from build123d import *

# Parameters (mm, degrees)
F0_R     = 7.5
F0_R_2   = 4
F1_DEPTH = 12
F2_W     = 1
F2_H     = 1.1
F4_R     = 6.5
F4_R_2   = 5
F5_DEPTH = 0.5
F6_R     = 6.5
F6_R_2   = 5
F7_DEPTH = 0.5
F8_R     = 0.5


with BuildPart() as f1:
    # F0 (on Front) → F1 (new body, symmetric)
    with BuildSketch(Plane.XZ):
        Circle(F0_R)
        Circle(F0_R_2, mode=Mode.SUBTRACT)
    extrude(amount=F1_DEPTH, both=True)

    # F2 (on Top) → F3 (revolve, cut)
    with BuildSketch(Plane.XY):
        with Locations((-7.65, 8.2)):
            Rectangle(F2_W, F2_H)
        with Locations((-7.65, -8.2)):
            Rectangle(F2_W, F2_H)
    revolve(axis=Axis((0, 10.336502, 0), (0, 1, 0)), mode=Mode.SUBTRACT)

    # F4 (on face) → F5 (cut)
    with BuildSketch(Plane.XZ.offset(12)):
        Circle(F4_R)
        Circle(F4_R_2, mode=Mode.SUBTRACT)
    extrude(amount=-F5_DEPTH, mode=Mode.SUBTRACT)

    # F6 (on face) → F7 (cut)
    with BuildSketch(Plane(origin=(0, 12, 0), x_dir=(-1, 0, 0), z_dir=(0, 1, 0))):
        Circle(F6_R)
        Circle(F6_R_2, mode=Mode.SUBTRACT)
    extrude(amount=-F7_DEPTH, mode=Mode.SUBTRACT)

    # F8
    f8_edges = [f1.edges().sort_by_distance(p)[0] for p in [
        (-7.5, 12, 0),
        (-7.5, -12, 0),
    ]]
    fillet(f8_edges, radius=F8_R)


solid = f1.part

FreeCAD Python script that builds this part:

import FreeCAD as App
import Part
import Sketcher
from FreeCAD import Vector
Q = App.Units.Quantity


def edges_at(feature, points):
    """Names of the edges that pass closest to the given points."""
    edges = feature.Shape.Edges
    near = lambda p: min(range(len(edges)), key=lambda i: edges[i].distToShape(Part.Vertex(*p))[0])
    return sorted({f"Edge{near(p) + 1}" for p in points})


def add_polygon(sketch, points):
    """Adds a closed chain of lines whose ends are joined by coincident constraints."""
    first, n = sketch.GeometryCount, len(points)
    for a, b in zip(points, points[1:] + points[:1]):
        sketch.addGeometry(Part.LineSegment(App.Vector(*a, 0), App.Vector(*b, 0)), False)
    for i in range(n):
        sketch.addConstraint(Sketcher.Constraint("Coincident", first + i, 2, first + (i + 1) % n, 1))

doc = App.newDocument("Part")
params = doc.addObject("Spreadsheet::Sheet", "Params")
for row, (alias, value) in enumerate([
    ("sketch1_diameter", "15 mm"),
    ("sketch1_diameter2", "8 mm"),
    ("pad1_length", "24 mm"),
    ("sketch2_width", "1 mm"),
    ("sketch2_height", "1.1 mm"),
    ("groove_angle", "360 deg"),
    ("sketch3_diameter", "13 mm"),
    ("sketch3_diameter2", "10 mm"),
    ("pocket1_length", "0.5 mm"),
    ("sketch4_diameter", "13 mm"),
    ("sketch4_diameter2", "10 mm"),
    ("pocket2_length", "0.5 mm"),
    ("fillet_radius", "0.5 mm"),
], start=1):
    params.set(f"A{row}", alias)
    params.set(f"B{row}", "=" + value)
    params.setAlias(f"B{row}", alias)

body = doc.addObject("PartDesign::Body", "Body")

sketch1 = body.newObject("Sketcher::SketchObject", "Sketch")
sketch1.AttachmentSupport = (doc.getObject("XZ_Plane"), [""])
sketch1.MapMode = "FlatFace"
sketch1.addGeometry([
    Part.Circle(Vector(0, 0, 0), Vector(0, 0, 1), 7.5),
    Part.Circle(Vector(0, 0, 0), Vector(0, 0, 1), 4),
], False)
sketch1.addConstraint([
    Sketcher.Constraint("Coincident", 0, 3, -1, 1),
    Sketcher.Constraint("Coincident", 1, 3, -1, 1),
    Sketcher.Constraint("Diameter", 0, Q("15 mm")),
    Sketcher.Constraint("Diameter", 1, Q("8 mm")),
])
sketch1.setExpression("Constraints[2]", "Params.sketch1_diameter")
sketch1.setExpression("Constraints[3]", "Params.sketch1_diameter2")
pad1 = body.newObject("PartDesign::Pad", "Pad")
pad1.Profile = sketch1
pad1.setExpression("Length", "Params.pad1_length")
pad1.Midplane = True

sketch2 = body.newObject("Sketcher::SketchObject", "Sketch001")
sketch2.AttachmentSupport = (doc.getObject("XY_Plane"), [""])
sketch2.MapMode = "FlatFace"
add_polygon(sketch2, [(-8.2, 8.8), (-8.2, 7.7), (-7.2, 7.7), (-7.2, 8.8)])
add_polygon(sketch2, [(-8.2, -7.7), (-8.2, -8.8), (-7.2, -8.8), (-7.2, -7.7)])
sketch2.addConstraint([
    Sketcher.Constraint("Vertical", 0),
    Sketcher.Constraint("Horizontal", 1),
    Sketcher.Constraint("Vertical", 2),
    Sketcher.Constraint("Horizontal", 3),
    Sketcher.Constraint("Vertical", 4),
    Sketcher.Constraint("Horizontal", 5),
    Sketcher.Constraint("Vertical", 6),
    Sketcher.Constraint("Horizontal", 7),
    Sketcher.Constraint("Symmetric", 3, 2, 4, 2, -1),
    Sketcher.Constraint("Symmetric", 1, 2, 6, 2, -1),
    Sketcher.Constraint("DistanceX", 1, 1, 1, 2, Q("1 mm")),
    Sketcher.Constraint("DistanceY", 0, 2, 0, 1, Q("1.1 mm")),
    Sketcher.Constraint("DistanceY", 4, 2, 0, 2, Q("16.4 mm")),
    Sketcher.Constraint("DistanceX", 0, 2, -1, 1, Q("8.15 mm")),
])
sketch2.setExpression("Constraints[18]", "Params.sketch2_width")
sketch2.setExpression("Constraints[19]", "Params.sketch2_height")
groove = body.newObject("PartDesign::Groove", "Groove")
groove.Profile = sketch2
groove.ReferenceAxis = (sketch2, ["V_Axis"])
groove.setExpression("Angle", "Params.groove_angle")

sketch3 = body.newObject("Sketcher::SketchObject", "Sketch002")
sketch3.AttachmentSupport = (doc.getObject("XZ_Plane"), [""])
sketch3.MapMode = "FlatFace"
sketch3.AttachmentOffset = App.Placement(Vector(0, 0, 12), App.Rotation())
sketch3.addGeometry([
    Part.Circle(Vector(0, 0, 0), Vector(0, 0, 1), 6),
    Part.Circle(Vector(0, 0, 0), Vector(0, 0, 1), 5),
], False)
sketch3.addConstraint([
    Sketcher.Constraint("Coincident", 0, 3, -1, 1),
    Sketcher.Constraint("Coincident", 1, 3, -1, 1),
    Sketcher.Constraint("Diameter", 0, Q("13 mm")),
    Sketcher.Constraint("Diameter", 1, Q("10 mm")),
])
sketch3.setExpression("Constraints[2]", "Params.sketch3_diameter")
sketch3.setExpression("Constraints[3]", "Params.sketch3_diameter2")
pocket1 = body.newObject("PartDesign::Pocket", "Pocket")
pocket1.Profile = sketch3
pocket1.setExpression("Length", "Params.pocket1_length")

sketch4 = body.newObject("Sketcher::SketchObject", "Sketch003")
sketch4.AttachmentSupport = (doc.getObject("XZ_Plane"), [""])
sketch4.MapMode = "FlatFace"
sketch4.AttachmentOffset = App.Placement(Vector(0, 0, -12), App.Rotation())
sketch4.addGeometry([
    Part.Circle(Vector(0, 0, 0), Vector(0, 0, 1), 6),
    Part.Circle(Vector(0, 0, 0), Vector(0, 0, 1), 5),
], False)
sketch4.addConstraint([
    Sketcher.Constraint("Coincident", 0, 3, -1, 1),
    Sketcher.Constraint("Coincident", 1, 3, -1, 1),
    Sketcher.Constraint("Diameter", 0, Q("13 mm")),
    Sketcher.Constraint("Diameter", 1, Q("10 mm")),
])
sketch4.setExpression("Constraints[2]", "Params.sketch4_diameter")
sketch4.setExpression("Constraints[3]", "Params.sketch4_diameter2")
pocket2 = body.newObject("PartDesign::Pocket", "Pocket001")
pocket2.Profile = sketch4
pocket2.setExpression("Length", "Params.pocket2_length")
pocket2.Reversed = True
doc.recompute()

fillet = body.newObject("PartDesign::Fillet", "Fillet")
fillet.Base = (pocket2, edges_at(pocket2, [(-7.5, 12, 0), (-7.5, -12, 0)]))
fillet.setExpression("Radius", "Params.fillet_radius")

doc.recompute()
